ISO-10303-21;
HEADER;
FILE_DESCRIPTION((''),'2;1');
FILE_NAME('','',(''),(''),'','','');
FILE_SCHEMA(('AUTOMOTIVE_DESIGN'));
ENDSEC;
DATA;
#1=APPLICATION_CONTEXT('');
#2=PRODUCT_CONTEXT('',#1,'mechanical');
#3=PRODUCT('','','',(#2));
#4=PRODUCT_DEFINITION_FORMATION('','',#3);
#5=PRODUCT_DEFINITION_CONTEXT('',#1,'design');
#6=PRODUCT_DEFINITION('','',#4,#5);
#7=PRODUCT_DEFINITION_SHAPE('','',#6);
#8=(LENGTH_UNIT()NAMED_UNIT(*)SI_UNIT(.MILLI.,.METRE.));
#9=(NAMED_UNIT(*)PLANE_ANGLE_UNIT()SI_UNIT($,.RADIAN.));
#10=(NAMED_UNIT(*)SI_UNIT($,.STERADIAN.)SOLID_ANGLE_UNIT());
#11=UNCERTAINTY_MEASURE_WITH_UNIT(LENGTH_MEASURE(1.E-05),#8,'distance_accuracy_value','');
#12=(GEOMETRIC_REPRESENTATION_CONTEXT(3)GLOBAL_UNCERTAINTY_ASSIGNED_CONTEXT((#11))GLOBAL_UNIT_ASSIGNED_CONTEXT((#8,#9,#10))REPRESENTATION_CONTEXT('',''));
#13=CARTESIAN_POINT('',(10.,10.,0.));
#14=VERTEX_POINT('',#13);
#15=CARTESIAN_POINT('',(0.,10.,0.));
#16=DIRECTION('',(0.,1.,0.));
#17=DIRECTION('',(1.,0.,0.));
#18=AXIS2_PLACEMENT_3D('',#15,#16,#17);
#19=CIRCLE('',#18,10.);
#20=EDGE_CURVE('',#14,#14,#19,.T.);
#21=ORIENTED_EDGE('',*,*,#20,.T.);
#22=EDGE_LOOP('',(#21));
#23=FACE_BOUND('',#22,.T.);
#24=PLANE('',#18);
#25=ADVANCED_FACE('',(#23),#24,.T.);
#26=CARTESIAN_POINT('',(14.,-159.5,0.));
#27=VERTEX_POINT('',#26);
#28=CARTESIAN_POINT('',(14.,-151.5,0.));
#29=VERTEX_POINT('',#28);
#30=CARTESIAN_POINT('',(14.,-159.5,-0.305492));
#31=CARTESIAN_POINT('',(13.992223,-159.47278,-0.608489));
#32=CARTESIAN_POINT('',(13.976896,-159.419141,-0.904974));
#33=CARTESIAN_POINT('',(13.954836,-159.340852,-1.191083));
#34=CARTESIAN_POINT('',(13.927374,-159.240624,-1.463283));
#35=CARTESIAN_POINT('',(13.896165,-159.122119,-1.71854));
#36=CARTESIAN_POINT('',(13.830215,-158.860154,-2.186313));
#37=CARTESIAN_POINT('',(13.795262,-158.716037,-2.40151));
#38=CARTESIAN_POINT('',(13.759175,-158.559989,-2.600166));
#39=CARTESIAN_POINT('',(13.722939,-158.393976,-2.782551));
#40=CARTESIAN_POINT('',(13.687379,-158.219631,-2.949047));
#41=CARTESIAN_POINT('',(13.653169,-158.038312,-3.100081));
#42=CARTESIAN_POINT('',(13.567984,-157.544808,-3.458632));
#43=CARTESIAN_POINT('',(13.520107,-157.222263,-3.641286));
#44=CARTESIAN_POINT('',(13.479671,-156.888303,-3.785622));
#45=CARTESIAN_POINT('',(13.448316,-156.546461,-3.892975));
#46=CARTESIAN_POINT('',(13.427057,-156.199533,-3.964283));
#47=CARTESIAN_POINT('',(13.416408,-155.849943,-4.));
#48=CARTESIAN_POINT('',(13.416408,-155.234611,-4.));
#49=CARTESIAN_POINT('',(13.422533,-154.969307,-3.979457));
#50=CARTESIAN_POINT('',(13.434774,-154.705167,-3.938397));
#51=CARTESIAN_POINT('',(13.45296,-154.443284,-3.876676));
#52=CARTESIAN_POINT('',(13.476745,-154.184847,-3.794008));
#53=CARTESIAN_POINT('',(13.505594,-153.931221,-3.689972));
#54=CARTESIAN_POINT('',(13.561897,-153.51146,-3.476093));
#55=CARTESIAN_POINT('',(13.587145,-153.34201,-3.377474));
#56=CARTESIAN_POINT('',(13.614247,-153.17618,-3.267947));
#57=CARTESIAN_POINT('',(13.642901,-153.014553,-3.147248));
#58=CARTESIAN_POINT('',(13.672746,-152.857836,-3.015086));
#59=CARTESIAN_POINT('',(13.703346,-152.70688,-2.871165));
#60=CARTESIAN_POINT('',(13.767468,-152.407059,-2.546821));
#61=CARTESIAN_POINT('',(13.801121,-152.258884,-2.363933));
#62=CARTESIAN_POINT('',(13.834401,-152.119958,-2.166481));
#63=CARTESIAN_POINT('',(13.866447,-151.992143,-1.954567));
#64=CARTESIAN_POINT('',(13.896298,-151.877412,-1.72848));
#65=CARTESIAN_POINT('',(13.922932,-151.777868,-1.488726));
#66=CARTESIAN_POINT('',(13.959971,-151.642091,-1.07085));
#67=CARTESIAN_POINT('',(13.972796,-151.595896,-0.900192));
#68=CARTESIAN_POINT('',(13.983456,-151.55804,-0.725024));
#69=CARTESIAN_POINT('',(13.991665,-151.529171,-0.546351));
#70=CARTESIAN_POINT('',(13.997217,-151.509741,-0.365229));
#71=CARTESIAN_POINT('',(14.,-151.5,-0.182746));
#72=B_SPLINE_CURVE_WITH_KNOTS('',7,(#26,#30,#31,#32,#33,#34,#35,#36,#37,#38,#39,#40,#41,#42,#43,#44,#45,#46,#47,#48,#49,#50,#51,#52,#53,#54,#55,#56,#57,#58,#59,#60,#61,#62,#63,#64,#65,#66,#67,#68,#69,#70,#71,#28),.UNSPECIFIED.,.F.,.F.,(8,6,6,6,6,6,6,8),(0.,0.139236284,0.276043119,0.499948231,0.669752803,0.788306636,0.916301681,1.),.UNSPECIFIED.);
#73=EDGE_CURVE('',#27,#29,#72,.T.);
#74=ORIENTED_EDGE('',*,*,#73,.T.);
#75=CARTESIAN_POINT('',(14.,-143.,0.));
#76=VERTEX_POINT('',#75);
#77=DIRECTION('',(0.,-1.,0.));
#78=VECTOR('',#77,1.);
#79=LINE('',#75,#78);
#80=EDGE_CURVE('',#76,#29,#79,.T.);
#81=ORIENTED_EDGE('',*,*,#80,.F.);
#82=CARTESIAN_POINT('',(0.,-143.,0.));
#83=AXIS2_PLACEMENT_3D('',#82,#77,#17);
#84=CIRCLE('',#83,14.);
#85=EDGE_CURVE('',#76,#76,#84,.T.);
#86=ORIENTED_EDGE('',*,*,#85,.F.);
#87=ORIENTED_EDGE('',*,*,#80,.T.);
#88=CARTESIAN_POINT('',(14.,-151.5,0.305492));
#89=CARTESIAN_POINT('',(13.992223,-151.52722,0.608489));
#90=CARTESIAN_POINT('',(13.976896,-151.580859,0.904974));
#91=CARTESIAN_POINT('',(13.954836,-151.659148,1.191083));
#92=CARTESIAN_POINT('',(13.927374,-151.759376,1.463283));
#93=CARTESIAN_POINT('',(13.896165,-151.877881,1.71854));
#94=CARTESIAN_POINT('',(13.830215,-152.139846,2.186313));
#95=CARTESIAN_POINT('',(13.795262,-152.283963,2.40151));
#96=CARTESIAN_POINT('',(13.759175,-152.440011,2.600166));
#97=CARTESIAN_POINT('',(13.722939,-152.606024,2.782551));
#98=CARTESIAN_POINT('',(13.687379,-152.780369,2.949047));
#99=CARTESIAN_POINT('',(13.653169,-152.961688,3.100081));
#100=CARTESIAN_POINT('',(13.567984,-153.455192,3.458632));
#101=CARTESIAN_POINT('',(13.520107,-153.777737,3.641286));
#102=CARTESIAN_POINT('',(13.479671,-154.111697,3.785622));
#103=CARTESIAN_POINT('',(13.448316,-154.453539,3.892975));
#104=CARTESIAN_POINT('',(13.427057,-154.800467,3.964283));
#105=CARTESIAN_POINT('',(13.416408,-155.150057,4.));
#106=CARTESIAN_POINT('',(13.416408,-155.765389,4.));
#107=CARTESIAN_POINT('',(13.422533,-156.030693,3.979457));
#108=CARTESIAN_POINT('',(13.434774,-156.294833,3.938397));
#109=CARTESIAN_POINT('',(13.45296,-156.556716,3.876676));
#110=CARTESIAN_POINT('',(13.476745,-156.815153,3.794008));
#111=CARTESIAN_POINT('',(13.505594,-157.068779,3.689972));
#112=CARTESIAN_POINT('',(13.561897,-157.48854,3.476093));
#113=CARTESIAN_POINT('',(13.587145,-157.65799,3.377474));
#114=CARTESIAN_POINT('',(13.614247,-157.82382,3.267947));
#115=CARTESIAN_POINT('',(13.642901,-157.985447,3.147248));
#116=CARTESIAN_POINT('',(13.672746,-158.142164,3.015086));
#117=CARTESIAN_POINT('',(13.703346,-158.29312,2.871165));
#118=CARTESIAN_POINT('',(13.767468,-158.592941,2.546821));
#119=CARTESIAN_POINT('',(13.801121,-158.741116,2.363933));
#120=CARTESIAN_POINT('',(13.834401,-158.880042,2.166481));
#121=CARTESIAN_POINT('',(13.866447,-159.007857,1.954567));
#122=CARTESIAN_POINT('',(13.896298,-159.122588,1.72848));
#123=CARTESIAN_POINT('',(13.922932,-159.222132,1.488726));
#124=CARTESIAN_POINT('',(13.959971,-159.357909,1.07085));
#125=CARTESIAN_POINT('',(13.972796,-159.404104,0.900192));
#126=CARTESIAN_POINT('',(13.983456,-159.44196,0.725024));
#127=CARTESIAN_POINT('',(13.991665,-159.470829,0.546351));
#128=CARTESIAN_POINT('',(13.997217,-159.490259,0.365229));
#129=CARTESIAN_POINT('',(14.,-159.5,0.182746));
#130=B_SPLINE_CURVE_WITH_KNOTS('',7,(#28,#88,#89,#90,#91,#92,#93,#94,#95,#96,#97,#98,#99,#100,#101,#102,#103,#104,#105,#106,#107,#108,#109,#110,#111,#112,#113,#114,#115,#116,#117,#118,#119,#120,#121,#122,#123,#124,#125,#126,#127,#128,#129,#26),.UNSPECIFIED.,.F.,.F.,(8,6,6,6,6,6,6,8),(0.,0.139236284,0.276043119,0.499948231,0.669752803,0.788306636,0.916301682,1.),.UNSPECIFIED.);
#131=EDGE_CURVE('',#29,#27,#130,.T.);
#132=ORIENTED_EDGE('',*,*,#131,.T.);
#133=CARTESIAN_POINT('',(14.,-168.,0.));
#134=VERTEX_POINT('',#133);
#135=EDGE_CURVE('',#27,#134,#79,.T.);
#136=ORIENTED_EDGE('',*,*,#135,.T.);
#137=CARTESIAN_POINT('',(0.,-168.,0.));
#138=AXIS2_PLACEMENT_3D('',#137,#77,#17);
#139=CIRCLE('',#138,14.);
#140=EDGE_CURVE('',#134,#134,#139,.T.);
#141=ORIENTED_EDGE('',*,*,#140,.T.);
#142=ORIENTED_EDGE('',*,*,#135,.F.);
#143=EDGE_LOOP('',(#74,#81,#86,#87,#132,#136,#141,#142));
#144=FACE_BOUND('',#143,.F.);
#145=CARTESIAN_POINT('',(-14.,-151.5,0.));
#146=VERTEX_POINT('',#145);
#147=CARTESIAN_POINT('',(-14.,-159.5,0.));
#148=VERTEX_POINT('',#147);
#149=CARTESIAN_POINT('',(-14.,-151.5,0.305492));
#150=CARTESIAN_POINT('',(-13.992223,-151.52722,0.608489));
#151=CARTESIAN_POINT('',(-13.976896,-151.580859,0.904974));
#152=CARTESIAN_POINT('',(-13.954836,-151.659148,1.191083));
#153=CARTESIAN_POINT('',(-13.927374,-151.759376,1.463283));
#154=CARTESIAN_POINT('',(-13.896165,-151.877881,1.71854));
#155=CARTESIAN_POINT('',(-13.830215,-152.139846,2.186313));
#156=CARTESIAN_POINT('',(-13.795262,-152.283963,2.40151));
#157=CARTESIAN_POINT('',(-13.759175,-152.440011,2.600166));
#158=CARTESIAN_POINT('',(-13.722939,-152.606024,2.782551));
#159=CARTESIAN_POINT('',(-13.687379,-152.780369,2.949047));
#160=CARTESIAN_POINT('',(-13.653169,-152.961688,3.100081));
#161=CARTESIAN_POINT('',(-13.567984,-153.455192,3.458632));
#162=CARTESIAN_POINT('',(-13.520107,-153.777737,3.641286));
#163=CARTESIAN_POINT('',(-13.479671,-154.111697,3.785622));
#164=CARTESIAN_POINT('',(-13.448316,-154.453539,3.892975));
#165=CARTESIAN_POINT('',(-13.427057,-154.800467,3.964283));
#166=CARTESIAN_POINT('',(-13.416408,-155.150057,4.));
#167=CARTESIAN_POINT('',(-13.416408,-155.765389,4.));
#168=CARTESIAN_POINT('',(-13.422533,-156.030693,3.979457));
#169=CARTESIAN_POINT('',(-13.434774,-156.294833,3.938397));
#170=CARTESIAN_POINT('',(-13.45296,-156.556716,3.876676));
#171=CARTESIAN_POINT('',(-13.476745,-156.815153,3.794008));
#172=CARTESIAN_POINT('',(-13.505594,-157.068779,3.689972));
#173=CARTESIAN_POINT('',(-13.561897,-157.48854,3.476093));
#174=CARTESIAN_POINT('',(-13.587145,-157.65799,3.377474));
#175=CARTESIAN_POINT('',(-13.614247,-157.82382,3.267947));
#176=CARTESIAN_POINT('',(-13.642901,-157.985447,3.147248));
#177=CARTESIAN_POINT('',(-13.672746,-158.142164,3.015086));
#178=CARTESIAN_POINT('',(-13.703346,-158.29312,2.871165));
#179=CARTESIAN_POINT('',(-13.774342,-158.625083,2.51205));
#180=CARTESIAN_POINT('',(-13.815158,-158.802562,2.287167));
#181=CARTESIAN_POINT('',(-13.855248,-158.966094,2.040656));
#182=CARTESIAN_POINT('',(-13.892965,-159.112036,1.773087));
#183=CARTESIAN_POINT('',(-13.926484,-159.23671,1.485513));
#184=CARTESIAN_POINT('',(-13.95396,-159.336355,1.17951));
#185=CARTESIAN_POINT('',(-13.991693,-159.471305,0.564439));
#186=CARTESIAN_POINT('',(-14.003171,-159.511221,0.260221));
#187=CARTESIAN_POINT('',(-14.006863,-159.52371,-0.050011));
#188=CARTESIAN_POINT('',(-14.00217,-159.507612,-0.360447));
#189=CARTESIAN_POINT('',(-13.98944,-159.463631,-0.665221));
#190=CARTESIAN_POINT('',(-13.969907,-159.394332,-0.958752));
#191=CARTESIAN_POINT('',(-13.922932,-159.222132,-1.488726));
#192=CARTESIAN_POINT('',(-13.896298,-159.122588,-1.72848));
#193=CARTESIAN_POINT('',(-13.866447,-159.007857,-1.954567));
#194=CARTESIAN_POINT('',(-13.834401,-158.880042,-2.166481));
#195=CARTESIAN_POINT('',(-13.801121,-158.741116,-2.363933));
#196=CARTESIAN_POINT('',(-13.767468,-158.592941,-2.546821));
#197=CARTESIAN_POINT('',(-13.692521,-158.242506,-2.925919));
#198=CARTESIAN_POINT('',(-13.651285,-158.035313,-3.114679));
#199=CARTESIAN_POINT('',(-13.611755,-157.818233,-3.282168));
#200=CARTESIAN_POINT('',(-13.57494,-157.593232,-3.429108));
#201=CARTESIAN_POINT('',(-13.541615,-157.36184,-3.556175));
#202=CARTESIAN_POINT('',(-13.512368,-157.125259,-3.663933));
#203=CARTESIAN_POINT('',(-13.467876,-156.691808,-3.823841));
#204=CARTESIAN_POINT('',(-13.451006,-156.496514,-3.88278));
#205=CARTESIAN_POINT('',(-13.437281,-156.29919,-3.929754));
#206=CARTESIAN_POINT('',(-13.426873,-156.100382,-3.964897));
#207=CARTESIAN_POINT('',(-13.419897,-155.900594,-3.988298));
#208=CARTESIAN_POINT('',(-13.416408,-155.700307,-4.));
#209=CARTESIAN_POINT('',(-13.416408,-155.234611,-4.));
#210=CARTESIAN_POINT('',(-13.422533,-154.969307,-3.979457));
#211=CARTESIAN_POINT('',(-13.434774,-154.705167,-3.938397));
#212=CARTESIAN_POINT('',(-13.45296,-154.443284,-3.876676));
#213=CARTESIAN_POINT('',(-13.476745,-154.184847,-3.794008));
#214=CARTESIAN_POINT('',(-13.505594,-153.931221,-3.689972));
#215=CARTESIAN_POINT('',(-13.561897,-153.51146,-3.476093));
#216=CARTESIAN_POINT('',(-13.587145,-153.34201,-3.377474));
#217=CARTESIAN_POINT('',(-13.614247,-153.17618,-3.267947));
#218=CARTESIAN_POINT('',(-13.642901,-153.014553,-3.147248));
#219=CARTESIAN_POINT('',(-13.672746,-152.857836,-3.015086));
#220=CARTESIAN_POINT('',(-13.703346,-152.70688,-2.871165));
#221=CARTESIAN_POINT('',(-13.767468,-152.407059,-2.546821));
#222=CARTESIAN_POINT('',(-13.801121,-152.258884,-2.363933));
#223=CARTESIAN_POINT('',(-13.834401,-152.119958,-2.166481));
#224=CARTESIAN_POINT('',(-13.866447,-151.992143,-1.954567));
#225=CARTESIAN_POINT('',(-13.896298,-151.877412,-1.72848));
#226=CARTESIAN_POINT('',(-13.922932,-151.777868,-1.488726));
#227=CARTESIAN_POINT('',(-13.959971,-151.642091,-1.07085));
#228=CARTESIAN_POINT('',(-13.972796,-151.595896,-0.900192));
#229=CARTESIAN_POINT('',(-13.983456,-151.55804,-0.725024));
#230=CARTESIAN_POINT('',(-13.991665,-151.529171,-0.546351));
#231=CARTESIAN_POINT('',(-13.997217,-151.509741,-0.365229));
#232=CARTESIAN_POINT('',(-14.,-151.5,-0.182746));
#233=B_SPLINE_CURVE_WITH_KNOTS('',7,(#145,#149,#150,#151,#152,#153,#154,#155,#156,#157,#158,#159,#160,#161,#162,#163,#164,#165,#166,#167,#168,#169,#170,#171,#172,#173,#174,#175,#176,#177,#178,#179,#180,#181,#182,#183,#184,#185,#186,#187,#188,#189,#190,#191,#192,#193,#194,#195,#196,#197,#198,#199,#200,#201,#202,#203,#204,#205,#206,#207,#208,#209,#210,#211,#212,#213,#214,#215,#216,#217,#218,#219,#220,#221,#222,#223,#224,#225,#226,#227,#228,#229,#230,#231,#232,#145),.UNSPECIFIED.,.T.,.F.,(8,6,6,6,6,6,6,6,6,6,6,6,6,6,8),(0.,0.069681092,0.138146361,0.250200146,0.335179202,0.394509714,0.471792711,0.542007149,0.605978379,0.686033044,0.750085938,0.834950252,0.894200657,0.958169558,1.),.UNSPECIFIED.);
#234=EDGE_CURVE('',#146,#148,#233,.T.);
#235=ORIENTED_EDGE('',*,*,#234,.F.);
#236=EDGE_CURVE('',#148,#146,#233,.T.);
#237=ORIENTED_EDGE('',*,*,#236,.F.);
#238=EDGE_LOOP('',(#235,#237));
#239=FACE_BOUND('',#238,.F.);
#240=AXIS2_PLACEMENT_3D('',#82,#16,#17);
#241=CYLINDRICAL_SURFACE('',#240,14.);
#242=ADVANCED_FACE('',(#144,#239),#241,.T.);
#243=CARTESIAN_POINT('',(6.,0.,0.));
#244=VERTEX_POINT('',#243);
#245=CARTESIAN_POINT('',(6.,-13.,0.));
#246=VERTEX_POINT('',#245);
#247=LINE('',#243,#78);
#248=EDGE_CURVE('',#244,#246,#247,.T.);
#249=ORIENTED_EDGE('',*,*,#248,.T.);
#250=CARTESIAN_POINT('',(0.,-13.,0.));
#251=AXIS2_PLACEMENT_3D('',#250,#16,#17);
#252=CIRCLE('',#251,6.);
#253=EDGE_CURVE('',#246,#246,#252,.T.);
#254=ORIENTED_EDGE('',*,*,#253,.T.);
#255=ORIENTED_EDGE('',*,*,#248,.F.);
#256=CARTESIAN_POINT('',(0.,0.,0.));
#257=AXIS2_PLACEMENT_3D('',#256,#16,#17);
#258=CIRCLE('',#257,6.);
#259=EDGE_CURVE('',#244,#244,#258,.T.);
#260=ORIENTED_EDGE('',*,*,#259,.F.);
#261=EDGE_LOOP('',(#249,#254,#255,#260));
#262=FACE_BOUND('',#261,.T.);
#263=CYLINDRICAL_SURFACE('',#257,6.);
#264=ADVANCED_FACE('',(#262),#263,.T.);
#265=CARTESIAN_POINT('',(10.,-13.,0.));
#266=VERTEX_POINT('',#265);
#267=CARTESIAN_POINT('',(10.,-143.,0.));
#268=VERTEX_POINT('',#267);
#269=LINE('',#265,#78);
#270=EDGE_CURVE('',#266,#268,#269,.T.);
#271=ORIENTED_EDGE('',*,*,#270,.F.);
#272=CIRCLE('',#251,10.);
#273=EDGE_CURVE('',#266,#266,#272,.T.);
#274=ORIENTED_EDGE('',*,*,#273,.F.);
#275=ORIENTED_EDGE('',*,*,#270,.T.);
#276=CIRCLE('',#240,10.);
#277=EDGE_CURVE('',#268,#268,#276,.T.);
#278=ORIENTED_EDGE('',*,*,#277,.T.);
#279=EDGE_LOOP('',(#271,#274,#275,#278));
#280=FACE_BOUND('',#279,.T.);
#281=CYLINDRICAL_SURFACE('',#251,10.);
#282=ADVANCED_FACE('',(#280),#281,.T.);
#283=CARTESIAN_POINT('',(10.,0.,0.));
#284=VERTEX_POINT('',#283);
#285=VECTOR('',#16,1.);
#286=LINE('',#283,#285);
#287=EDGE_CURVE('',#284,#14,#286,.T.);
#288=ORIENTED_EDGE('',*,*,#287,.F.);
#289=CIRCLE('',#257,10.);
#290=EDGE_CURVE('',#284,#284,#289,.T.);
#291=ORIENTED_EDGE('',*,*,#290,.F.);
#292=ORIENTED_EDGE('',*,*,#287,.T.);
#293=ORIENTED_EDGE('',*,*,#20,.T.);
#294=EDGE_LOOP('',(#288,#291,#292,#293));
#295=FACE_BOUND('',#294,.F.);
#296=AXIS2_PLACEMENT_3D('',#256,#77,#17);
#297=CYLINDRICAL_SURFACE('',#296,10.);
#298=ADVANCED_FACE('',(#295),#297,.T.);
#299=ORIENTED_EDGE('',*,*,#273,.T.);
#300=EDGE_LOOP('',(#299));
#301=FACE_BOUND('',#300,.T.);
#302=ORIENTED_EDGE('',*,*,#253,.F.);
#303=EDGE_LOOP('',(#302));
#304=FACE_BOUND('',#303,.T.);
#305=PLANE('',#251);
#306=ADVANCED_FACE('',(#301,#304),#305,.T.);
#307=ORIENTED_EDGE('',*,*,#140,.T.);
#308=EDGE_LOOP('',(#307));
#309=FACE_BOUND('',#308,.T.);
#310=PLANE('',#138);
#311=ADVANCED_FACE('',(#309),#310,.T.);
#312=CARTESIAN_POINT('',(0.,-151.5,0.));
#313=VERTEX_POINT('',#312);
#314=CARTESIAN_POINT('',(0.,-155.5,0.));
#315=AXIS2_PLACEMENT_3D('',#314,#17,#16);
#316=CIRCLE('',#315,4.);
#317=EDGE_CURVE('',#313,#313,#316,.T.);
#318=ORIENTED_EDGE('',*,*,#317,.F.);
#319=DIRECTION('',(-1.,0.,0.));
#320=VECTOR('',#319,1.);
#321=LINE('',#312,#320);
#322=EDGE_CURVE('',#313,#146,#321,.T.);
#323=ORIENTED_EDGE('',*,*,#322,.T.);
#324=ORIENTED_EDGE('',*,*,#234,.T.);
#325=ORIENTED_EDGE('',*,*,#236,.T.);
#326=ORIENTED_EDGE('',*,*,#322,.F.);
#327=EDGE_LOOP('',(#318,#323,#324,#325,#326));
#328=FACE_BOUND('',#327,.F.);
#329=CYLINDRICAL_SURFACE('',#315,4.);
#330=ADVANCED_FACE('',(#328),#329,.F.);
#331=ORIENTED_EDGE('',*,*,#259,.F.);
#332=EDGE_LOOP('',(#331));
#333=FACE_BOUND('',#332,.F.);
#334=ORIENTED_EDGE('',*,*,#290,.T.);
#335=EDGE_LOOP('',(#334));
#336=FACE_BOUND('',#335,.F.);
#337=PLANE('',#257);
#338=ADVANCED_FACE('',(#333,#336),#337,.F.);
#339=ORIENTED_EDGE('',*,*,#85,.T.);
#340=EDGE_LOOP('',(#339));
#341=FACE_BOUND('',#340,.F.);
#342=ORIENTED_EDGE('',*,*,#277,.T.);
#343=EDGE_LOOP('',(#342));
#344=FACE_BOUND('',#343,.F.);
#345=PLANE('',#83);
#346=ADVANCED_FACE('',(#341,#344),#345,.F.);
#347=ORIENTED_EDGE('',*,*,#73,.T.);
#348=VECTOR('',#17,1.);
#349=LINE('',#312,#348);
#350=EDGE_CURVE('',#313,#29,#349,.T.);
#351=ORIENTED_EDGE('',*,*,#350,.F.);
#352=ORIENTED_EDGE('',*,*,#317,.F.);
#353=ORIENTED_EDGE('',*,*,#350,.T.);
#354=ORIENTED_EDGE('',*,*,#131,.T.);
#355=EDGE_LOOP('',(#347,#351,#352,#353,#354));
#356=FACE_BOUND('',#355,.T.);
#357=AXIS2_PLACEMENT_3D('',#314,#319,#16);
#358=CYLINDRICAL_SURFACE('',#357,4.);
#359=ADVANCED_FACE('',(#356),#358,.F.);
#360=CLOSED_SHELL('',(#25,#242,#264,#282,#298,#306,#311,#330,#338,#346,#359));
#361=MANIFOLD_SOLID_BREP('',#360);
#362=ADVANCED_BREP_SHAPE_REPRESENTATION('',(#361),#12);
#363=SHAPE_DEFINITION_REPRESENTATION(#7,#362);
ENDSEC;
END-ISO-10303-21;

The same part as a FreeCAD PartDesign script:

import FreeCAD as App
import Part
import Sketcher
from FreeCAD import Vector
Q = App.Units.Quantity

doc = App.newDocument("Part")
body = doc.addObject("PartDesign::Body", "Body")

sketch1 = body.newObject("Sketcher::SketchObject", "Sketch")
sketch1.AttachmentSupport = (doc.getObject("XZ_Plane"), [""])
sketch1.MapMode = "FlatFace"
sketch1.addGeometry(Part.Circle(Vector(0, 0, 0), Vector(0, 0, 1), 10), False)
sketch1.addConstraint([
    Sketcher.Constraint("Coincident", 0, 3, -1, 1),
    Sketcher.Constraint("Diameter", 0, Q("20 mm")),
])
pad1 = body.newObject("PartDesign::Pad", "Pad")
pad1.Profile = sketch1
pad1.Length = 10
pad1.Reversed = True

sketch2 = body.newObject("Sketcher::SketchObject", "Sketch001")
sketch2.AttachmentSupport = (doc.getObject("XZ_Plane"), [""])
sketch2.MapMode = "FlatFace"
sketch2.addGeometry(Part.Circle(Vector(0, 0, 0), Vector(0, 0, 1), 6), False)
sketch2.addConstraint([
    Sketcher.Constraint("Coincident", 0, 3, -1, 1),
    Sketcher.Constraint("Diameter", 0, Q("12 mm")),
])
pad2 = body.newObject("PartDesign::Pad", "Pad001")
pad2.Profile = sketch2
pad2.Length = 13

sketch3 = body.newObject("Sketcher::SketchObject", "Sketch002")
sketch3.AttachmentSupport = (doc.getObject("XZ_Plane"), [""])
sketch3.MapMode = "FlatFace"
sketch3.AttachmentOffset = App.Placement(Vector(0, 0, 13), App.Rotation())
sketch3.addGeometry(Part.Circle(Vector(0, 0, 0), Vector(0, 0, 1), 10), False)
sketch3.addConstraint([
    Sketcher.Constraint("Coincident", 0, 3, -1, 1),
    Sketcher.Constraint("Diameter", 0, Q("20 mm")),
])
pad3 = body.newObject("PartDesign::Pad", "Pad002")
pad3.Profile = sketch3
pad3.Length = 130

sketch4 = body.newObject("Sketcher::SketchObject", "Sketch003")
sketch4.AttachmentSupport = (doc.getObject("XZ_Plane"), [""])
sketch4.MapMode = "FlatFace"
sketch4.AttachmentOffset = App.Placement(Vector(0, 0, 143), App.Rotation())
sketch4.addGeometry(Part.Circle(Vector(0, 0, 0), Vector(0, 0, 1), 14), False)
sketch4.addConstraint([
    Sketcher.Constraint("Coincident", 0, 3, -1, 1),
    Sketcher.Constraint("Diameter", 0, Q("28 mm")),
])
pad4 = body.newObject("PartDesign::Pad", "Pad003")
pad4.Profile = sketch4
pad4.Length = 25

sketch5 = body.newObject("Sketcher::SketchObject", "Sketch004")
sketch5.AttachmentSupport = (doc.getObject("YZ_Plane"), [""])
sketch5.MapMode = "FlatFace"
sketch5.addGeometry(Part.Circle(Vector(-155.5, 0, 0), Vector(0, 0, 1), 4), False)
sketch5.addConstraint([
    Sketcher.Constraint("PointOnObject", 0, 3, -1),
    Sketcher.Constraint("Diameter", 0, Q("8 mm")),
    Sketcher.Constraint("DistanceX", 0, 3, -1, 1, Q("155.5 mm")),
])
pocket1 = body.newObject("PartDesign::Pocket", "Pocket")
pocket1.Profile = sketch5
pocket1.Type = "ThroughAll"
pocket1.Midplane = True

doc.recompute()
